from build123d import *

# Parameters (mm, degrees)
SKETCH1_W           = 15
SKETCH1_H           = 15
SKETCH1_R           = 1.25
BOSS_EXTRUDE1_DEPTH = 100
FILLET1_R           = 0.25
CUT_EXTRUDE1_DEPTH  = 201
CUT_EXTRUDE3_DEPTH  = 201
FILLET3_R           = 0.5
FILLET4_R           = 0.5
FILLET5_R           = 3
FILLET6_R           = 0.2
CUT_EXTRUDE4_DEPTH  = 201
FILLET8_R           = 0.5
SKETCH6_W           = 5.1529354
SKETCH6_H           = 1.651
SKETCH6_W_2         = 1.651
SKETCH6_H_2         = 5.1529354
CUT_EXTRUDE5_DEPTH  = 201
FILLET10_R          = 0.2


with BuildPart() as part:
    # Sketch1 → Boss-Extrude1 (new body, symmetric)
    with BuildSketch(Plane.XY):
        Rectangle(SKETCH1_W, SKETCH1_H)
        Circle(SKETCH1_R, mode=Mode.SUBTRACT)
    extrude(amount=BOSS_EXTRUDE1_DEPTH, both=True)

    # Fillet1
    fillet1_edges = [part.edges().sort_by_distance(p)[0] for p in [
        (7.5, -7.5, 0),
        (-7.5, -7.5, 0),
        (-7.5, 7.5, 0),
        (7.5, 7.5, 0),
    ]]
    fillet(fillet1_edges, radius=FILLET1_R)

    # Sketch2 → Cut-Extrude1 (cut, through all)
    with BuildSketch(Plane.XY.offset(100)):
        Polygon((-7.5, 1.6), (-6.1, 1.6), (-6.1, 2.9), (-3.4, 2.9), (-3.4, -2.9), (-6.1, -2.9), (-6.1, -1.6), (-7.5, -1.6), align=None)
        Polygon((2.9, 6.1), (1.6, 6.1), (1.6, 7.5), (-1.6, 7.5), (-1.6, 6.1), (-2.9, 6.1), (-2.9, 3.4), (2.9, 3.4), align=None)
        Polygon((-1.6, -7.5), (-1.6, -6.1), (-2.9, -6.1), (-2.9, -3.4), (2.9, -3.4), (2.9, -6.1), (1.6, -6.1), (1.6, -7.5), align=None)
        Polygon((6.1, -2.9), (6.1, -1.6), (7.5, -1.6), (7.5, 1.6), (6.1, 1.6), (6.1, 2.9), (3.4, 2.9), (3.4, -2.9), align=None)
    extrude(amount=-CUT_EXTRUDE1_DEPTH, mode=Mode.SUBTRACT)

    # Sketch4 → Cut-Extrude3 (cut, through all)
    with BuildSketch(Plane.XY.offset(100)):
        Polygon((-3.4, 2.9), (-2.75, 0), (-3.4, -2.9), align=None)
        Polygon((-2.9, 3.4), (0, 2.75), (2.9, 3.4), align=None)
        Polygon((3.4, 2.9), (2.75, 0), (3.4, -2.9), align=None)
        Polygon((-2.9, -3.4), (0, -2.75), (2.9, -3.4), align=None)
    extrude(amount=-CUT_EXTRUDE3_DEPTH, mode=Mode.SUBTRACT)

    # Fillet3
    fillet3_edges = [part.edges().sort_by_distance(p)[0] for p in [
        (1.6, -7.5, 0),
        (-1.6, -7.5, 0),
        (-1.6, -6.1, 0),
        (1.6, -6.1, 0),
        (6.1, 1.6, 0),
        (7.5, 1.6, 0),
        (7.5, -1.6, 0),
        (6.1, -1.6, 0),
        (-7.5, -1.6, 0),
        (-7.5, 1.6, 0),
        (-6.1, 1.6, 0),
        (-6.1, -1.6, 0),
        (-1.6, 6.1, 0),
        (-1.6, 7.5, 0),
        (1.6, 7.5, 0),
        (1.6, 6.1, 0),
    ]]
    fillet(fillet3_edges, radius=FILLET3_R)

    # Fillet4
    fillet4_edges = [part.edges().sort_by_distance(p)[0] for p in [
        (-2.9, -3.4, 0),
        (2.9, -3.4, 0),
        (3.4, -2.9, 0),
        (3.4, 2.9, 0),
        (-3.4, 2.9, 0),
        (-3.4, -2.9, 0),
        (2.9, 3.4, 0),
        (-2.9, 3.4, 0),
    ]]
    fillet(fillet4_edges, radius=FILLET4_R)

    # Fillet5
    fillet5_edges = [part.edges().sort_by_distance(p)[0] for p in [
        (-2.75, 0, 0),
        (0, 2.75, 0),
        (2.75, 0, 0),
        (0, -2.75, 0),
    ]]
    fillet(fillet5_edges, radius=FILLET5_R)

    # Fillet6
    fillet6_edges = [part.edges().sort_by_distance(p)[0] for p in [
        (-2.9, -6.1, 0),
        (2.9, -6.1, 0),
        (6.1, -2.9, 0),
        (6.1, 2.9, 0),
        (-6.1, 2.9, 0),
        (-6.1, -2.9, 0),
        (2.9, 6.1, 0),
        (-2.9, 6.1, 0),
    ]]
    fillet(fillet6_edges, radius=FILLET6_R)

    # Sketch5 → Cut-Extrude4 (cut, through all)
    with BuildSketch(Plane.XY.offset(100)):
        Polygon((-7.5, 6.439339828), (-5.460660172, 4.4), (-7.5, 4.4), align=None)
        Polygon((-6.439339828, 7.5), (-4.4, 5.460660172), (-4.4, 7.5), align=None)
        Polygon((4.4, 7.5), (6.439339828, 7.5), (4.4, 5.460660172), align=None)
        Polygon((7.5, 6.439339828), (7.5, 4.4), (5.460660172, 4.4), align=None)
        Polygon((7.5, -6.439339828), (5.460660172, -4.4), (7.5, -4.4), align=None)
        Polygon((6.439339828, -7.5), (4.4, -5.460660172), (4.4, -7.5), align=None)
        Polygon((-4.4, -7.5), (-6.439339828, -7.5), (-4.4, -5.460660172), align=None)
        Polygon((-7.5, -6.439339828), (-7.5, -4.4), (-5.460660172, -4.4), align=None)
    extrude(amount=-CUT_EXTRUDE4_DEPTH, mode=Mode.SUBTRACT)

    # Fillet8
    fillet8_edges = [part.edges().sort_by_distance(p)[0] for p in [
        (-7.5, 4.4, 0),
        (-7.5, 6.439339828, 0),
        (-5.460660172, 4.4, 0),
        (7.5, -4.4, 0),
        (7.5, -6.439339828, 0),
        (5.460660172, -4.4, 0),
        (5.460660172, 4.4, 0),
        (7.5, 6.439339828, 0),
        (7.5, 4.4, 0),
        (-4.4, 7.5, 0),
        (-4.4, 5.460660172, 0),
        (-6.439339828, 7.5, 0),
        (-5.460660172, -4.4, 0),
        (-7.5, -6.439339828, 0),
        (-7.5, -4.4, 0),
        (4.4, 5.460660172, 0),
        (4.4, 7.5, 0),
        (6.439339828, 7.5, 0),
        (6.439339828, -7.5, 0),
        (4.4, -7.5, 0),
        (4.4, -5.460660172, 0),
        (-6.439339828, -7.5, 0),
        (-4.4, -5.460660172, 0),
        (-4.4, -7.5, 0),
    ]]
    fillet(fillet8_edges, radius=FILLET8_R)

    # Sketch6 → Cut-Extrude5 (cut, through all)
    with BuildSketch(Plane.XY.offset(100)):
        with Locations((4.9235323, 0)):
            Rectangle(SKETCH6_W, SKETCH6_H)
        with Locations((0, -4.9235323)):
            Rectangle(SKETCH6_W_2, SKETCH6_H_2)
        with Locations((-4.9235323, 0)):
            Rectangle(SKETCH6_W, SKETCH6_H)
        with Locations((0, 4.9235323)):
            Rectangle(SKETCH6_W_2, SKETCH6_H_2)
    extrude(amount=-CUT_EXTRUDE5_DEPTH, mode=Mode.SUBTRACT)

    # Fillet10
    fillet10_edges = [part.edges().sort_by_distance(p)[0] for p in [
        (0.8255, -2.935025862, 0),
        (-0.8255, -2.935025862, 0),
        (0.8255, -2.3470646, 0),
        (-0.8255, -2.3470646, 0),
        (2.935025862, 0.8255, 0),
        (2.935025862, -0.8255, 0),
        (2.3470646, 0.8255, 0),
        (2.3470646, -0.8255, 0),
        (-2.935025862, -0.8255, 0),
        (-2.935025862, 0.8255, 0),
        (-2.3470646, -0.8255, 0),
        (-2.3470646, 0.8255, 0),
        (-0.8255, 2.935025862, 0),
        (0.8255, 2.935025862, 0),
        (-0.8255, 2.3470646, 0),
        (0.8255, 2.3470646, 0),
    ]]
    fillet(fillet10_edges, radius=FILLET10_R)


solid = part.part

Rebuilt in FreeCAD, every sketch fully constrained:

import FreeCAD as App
import Part
import Sketcher

V = App.Vector
Q = App.Units.Quantity


def edges_at(feature, points):
    """Names of the edges that pass closest to the given points."""
    edges = feature.Shape.Edges
    near = lambda p: min(range(len(edges)), key=lambda i: edges[i].distToShape(Part.Vertex(*p))[0])
    return sorted({f"Edge{near(p) + 1}" for p in points})


def add_polygon(sketch, points):
    """Adds a closed chain of lines whose ends are joined by coincident constraints."""
    first, n = sketch.GeometryCount, len(points)
    for a, b in zip(points, points[1:] + points[:1]):
        sketch.addGeometry(Part.LineSegment(App.Vector(*a, 0), App.Vector(*b, 0)), False)
    for i in range(n):
        sketch.addConstraint(Sketcher.Constraint("Coincident", first + i, 2, first + (i + 1) % n, 1))

doc = App.newDocument("Part")
body = doc.addObject("PartDesign::Body", "Body")

sketch1 = body.newObject("Sketcher::SketchObject", "Sketch")
sketch1.AttachmentSupport = (doc.getObject("XY_Plane"), [""])
sketch1.MapMode = "FlatFace"
add_polygon(sketch1, [(-7.5, 7.5), (-7.5, -7.5), (7.5, -7.5), (7.5, 7.5)])
sketch1.addGeometry(Part.Circle(V(0, 0, 0), V(0, 0, 1), 1.2), False)
sketch1.addConstraint([
    Sketcher.Constraint("Vertical", 0),
    Sketcher.Constraint("Horizontal", 1),
    Sketcher.Constraint("Vertical", 2),
    Sketcher.Constraint("Horizontal", 3),
    Sketcher.Constraint("Coincident", 4, 3, -1, 1),
    Sketcher.Constraint("Symmetric", 0, 2, 2, 2, -1, 1),
    Sketcher.Constraint("Equal", 3, 0),
    Sketcher.Constraint("Diameter", 4, Q("2.5 mm")),
    Sketcher.Constraint("DistanceX", 1, 1, 1, 2, Q("15 mm")),
])
pad1 = body.newObject("PartDesign::Pad", "Pad")
pad1.Profile = sketch1
pad1.Length = 200
pad1.Midplane = True
doc.recompute()

fillet = body.newObject("PartDesign::Fillet", "Fillet")
fillet.Base = (pad1, edges_at(pad1, [
    (7.5, -7.5, 0),
    (-7.5, -7.5, 0),
    (-7.5, 7.5, 0),
    (7.5, 7.5, 0),
]))
fillet.Radius = 0.25

sketch2 = body.newObject("Sketcher::SketchObject", "Sketch001")
sketch2.AttachmentSupport = (doc.getObject("XY_Plane"), [""])
sketch2.MapMode = "FlatFace"
sketch2.AttachmentOffset = App.Placement(V(0, 0, 100), App.Rotation())
add_polygon(sketch2, [(-6.1, 1.6), (-7.5, 1.6), (-7.5, -1.6), (-6.1, -1.6), (-6.1, -2.9), (-3.4, -2.9), (-3.4, 2.9), (-6.1, 2.9)])
add_polygon(sketch2, [(2.9, 6.1), (1.6, 6.1), (1.6, 7.5), (-1.6, 7.5), (-1.6, 6.1), (-2.9, 6.1), (-2.9, 3.4), (2.9, 3.4)])
add_polygon(sketch2, [(-1.6, -6.1), (-1.6, -7.5), (1.6, -7.5), (1.6, -6.1), (2.9, -6.1), (2.9, -3.4), (-2.9, -3.4), (-2.9, -6.1)])
add_polygon(sketch2, [(6.1, -2.9), (6.1, -1.6), (7.5, -1.6), (7.5, 1.6), (6.1, 1.6), (6.1, 2.9), (3.4, 2.9), (3.4, -2.9)])
sketch2.addConstraint([
    Sketcher.Constraint("Horizontal", 0),
    Sketcher.Constraint("Vertical", 1),
    Sketcher.Constraint("Horizontal", 2),
    Sketcher.Constraint("Vertical", 3),
    Sketcher.Constraint("Horizontal", 4),
    Sketcher.Constraint("Vertical", 5),
    Sketcher.Constraint("Horizontal", 6),
    Sketcher.Constraint("Vertical", 7),
    Sketcher.Constraint("Horizontal", 8),
    Sketcher.Constraint("Vertical", 9),
    Sketcher.Constraint("Horizontal", 10),
    Sketcher.Constraint("Vertical", 11),
    Sketcher.Constraint("Horizontal", 12),
    Sketcher.Constraint("Vertical", 13),
    Sketcher.Constraint("Horizontal", 14),
    Sketcher.Constraint("Vertical", 15),
    Sketcher.Constraint("Vertical", 16),
    Sketcher.Constraint("Horizontal", 17),
    Sketcher.Constraint("Vertical", 18),
    Sketcher.Constraint("Horizontal", 19),
    Sketcher.Constraint("Vertical", 20),
    Sketcher.Constraint("Horizontal", 21),
    Sketcher.Constraint("Vertical", 22),
    Sketcher.Constraint("Horizontal", 23),
    Sketcher.Constraint("Vertical", 24),
    Sketcher.Constraint("Horizontal", 25),
    Sketcher.Constraint("Vertical", 26),
    Sketcher.Constraint("Horizontal", 27),
    Sketcher.Constraint("Vertical", 28),
    Sketcher.Constraint("Horizontal", 29),
    Sketcher.Constraint("Vertical", 30),
    Sketcher.Constraint("Horizontal", 31),
    Sketcher.Constraint("Symmetric", 9, 2, 16, 2, -1, 1),
    Sketcher.Constraint("Symmetric", 11, 2, 18, 2, -1, 1),
    Sketcher.Constraint("Symmetric", 13, 2, 20, 2, -1, 1),
    Sketcher.Constraint("Symmetric", 15, 2, 22, 2, -1, 1),
    Sketcher.Constraint("Symmetric", 7, 2, 24, 2, -1, 1),
    Sketcher.Constraint("Symmetric", 1, 2, 26, 2, -1, 1),
    Sketcher.Constraint("Symmetric", 3, 2, 28, 2, -1, 1),
    Sketcher.Constraint("Symmetric", 5, 2, 30, 2, -1, 1),
    Sketcher.Constraint("Symmetric", 8, 2, 11, 2, -2),
    Sketcher.Constraint("Symmetric", 2, 2, 24, 2, -2),
    Sketcher.Constraint("Horizontal", 6, 2, 28, 2),
    Sketcher.Constraint("Vertical", 15, 2, 19, 2),
    Sketcher.Constraint("Equal", 17, 1),
    Sketcher.Constraint("Equal", 23, 3),
    Sketcher.Constraint("Equal", 27, 9),
    Sketcher.Constraint("Equal", 31, 13),
    Sketcher.Constraint("DistanceX", 0, 2, 0, 1, Q("1.4 mm")),
    Sketcher.Constraint("DistanceX", 4, 1, 4, 2, Q("2.7 mm")),
    Sketcher.Constraint("DistanceX", 8, 2, 8, 1, Q("1.3 mm")),
    Sketcher.Constraint("DistanceX", 10, 2, 10, 1, Q("3.2 mm")),
    Sketcher.Constraint("DistanceX", 5, 2, 8, 2, Q("5 mm")),
    Sketcher.Constraint("DistanceY", 4, 2, 8, 2, Q("9 mm")),
])
pocket1 = body.newObject("PartDesign::Pocket", "Pocket")
pocket1.Profile = sketch2
pocket1.Type = "ThroughAll"

sketch3 = body.newObject("Sketcher::SketchObject", "Sketch002")
sketch3.AttachmentSupport = (doc.getObject("XY_Plane"), [""])
sketch3.MapMode = "FlatFace"
sketch3.AttachmentOffset = App.Placement(V(0, 0, 100), App.Rotation())
add_polygon(sketch3, [(-2.8, 0), (-3.4, 2.9), (-3.4, -2.9)])
add_polygon(sketch3, [(-2.9, 3.4), (0, 2.8), (2.9, 3.4)])
add_polygon(sketch3, [(3.4, 2.9), (2.8, 0), (3.4, -2.9)])
add_polygon(sketch3, [(0, -2.8), (-2.9, -3.4), (2.9, -3.4)])
sketch3.addConstraint([
    Sketcher.Constraint("Vertical", 1),
    Sketcher.Constraint("Horizontal", 5),
    Sketcher.Constraint("Vertical", 8),
    Sketcher.Constraint("Horizontal", 10),
    Sketcher.Constraint("Symmetric", 2, 2, 6, 2, -1, 1),
    Sketcher.Constraint("Symmetric", 0, 2, 7, 2, -1, 1),
    Sketcher.Constraint("Symmetric", 4, 2, 9, 2, -1, 1),
    Sketcher.Constraint("Symmetric", 3, 2, 11, 2, -1, 1),
    Sketcher.Constraint("PointOnObject", 2, 2, -1),
    Sketcher.Constraint("PointOnObject", 3, 2, -2),
    Sketcher.Constraint("Perpendicular", 2, 3),
    Sketcher.Constraint("Perpendicular", 0, 4),
    Sketcher.Constraint("Perpendicular", 3, 6),
    Sketcher.Constraint("Perpendicular", 6, 11),
    Sketcher.Constraint("Horizontal", 1, 2, 7, 2),
    Sketcher.Constraint("Equal", 10, 1),
    Sketcher.Constraint("DistanceX", 5, 2, 5, 1, Q("5.8 mm")),
    Sketcher.Constraint("DistanceX", 0, 2, -1, 1, Q("3.4 mm")),
    Sketcher.Constraint("DistanceY", -1, 1, 4, 2, Q("3.4 mm")),
    Sketcher.Constraint("DistanceX", 2, 2, 6, 2, Q("5.5 mm")),
])
pocket2 = body.newObject("PartDesign::Pocket", "Pocket001")
pocket2.Profile = sketch3
pocket2.Type = "ThroughAll"
doc.recompute()

fillet2 = body.newObject("PartDesign::Fillet", "Fillet001")
fillet2.Base = (pocket2, edges_at(pocket2, [
    (1.6, -7.5, 0),
    (-1.6, -7.5, 0),
    (-1.6, -6.1, 0),
    (1.6, -6.1, 0),
    (6.1, 1.6, 0),
    (7.5, 1.6, 0),
    (7.5, -1.6, 0),
    (6.1, -1.6, 0),
    (-7.5, -1.6, 0),
    (-7.5, 1.6, 0),
    (-6.1, 1.6, 0),
    (-6.1, -1.6, 0),
    (-1.6, 6.1, 0),
    (-1.6, 7.5, 0),
    (1.6, 7.5, 0),
    (1.6, 6.1, 0),
]))
fillet2.Radius = 0.5
doc.recompute()

fillet3 = body.newObject("PartDesign::Fillet", "Fillet002")
fillet3.Base = (fillet2, edges_at(fillet2, [
    (-2.9, -3.4, 0),
    (2.9, -3.4, 0),
    (3.4, -2.9, 0),
    (3.4, 2.9, 0),
    (-3.4, 2.9, 0),
    (-3.4, -2.9, 0),
    (2.9, 3.4, 0),
    (-2.9, 3.4, 0),
]))
fillet3.Radius = 0.5
doc.recompute()

fillet4 = body.newObject("PartDesign::Fillet", "Fillet003")
fillet4.Base = (fillet3, edges_at(fillet3, [
    (-2.75, 0, 0),
    (0, 2.75, 0),
    (2.75, 0, 0),
    (0, -2.75, 0),
]))
fillet4.Radius = 3
doc.recompute()

fillet5 = body.newObject("PartDesign::Fillet", "Fillet004")
fillet5.Base = (fillet4, edges_at(fillet4, [
    (-2.9, -6.1, 0),
    (2.9, -6.1, 0),
    (6.1, -2.9, 0),
    (6.1, 2.9, 0),
    (-6.1, 2.9, 0),
    (-6.1, -2.9, 0),
    (2.9, 6.1, 0),
    (-2.9, 6.1, 0),
]))
fillet5.Radius = 0.2

sketch4 = body.newObject("Sketcher::SketchObject", "Sketch003")
sketch4.AttachmentSupport = (doc.getObject("XY_Plane"), [""])
sketch4.MapMode = "FlatFace"
sketch4.AttachmentOffset = App.Placement(V(0, 0, 100), App.Rotation())
add_polygon(sketch4, [(-5.5, 4.4), (-7.5, 6.4), (-7.5, 4.4)])
add_polygon(sketch4, [(-6.4, 7.5), (-4.4, 5.5), (-4.4, 7.5)])
add_polygon(sketch4, [(6.4, 7.5), (4.4, 7.5), (4.4, 5.5)])
add_polygon(sketch4, [(7.5, 4.4), (7.5, 6.4), (5.5, 4.4)])
add_polygon(sketch4, [(5.5, -4.4), (7.5, -6.4), (7.5, -4.4)])
add_polygon(sketch4, [(6.4, -7.5), (4.4, -5.5), (4.4, -7.5)])
add_polygon(sketch4, [(-6.4, -7.5), (-4.4, -7.5), (-4.4, -5.5)])
add_polygon(sketch4, [(-7.5, -4.4), (-7.5, -6.4), (-5.5, -4.4)])
sketch4.addConstraint([
    Sketcher.Constraint("Vertical", 1),
    Sketcher.Constraint("Horizontal", 2),
    Sketcher.Constraint("Vertical", 4),
    Sketcher.Constraint("Horizontal", 5),
    Sketcher.Constraint("Horizontal", 6),
    Sketcher.Constraint("Vertical", 7),
    Sketcher.Constraint("Vertical", 9),
    Sketcher.Constraint("Horizontal", 11),
    Sketcher.Constraint("Vertical", 13),
    Sketcher.Constraint("Horizontal", 14),
    Sketcher.Constraint("Vertical", 16),
    Sketcher.Constraint("Horizontal", 17),
    Sketcher.Constraint("Horizontal", 18),
    Sketcher.Constraint("Vertical", 19),
    Sketcher.Constraint("Vertical", 21),
    Sketcher.Constraint("Horizontal", 23),
    Sketcher.Constraint("Symmetric", 0, 2, 12, 2, -1, 1),
    Sketcher.Constraint("Symmetric", 2, 2, 14, 2, -1, 1),
    Sketcher.Constraint("Symmetric", 3, 2, 15, 2, -1, 1),
    Sketcher.Constraint("Symmetric", 5, 2, 17, 2, -1, 1),
    Sketcher.Constraint("Symmetric", 6, 2, 18, 2, -1, 1),
    Sketcher.Constraint("Symmetric", 9, 2, 21, 2, -1, 1),
    Sketcher.Constraint("Symmetric", 10, 2, 22, 2, -1, 1),
    Sketcher.Constraint("Symmetric", 4, 2, 6, 2, -2),
    Sketcher.Constraint("Symmetric", 0, 2, 9, 2, -2),
    Sketcher.Constraint("Symmetric", 2, 2, 10, 2, -2),
    Sketcher.Constraint("Parallel", 0, 3),
    Sketcher.Constraint("Perpendicular", 3, 8),
    Sketcher.Constraint("Parallel", 8, 10),
    Sketcher.Constraint("Perpendicular", 15, 20),
    Sketcher.Constraint("Horizontal", 3, 2, 7, 2),
    Sketcher.Constraint("Horizontal", 15, 2, 19, 2),
    Sketcher.Constraint("Equal", 2, 5),
    Sketcher.Constraint("DistanceX", 0, 2, -1, 1, Q("7.5 mm")),
    Sketcher.Constraint("DistanceY", -1, 1, 1, 2, Q("4.4 mm")),
    Sketcher.Constraint("DistanceX", 3, 2, -1, 1, Q("4.4 mm")),
    Sketcher.Constraint("DistanceY", -1, 1, 4, 2, Q("7.5 mm")),
    Sketcher.Constraint("DistanceX", 2, 1, 2, 2, Q("2.03934 mm")),
])
pocket3 = body.newObject("PartDesign::Pocket", "Pocket002")
pocket3.Profile = sketch4
pocket3.Type = "ThroughAll"
doc.recompute()

fillet6 = body.newObject("PartDesign::Fillet", "Fillet005")
fillet6.Base = (pocket3, edges_at(pocket3, [
    (-7.5, 4.4, 0),
    (-7.5, 6.439, 0),
    (-5.461, 4.4, 0),
    (7.5, -4.4, 0),
    (7.5, -6.439, 0),
    (5.461, -4.4, 0),
    (5.461, 4.4, 0),
    (7.5, 6.439, 0),
    (7.5, 4.4, 0),
    (-4.4, 7.5, 0),
    (-4.4, 5.461, 0),
    (-6.439, 7.5, 0),
    (-5.461, -4.4, 0),
    (-7.5, -6.439, 0),
    (-7.5, -4.4, 0),
    (4.4, 5.461, 0),
    (4.4, 7.5, 0),
    (6.439, 7.5, 0),
    (6.439, -7.5, 0),
    (4.4, -7.5, 0),
    (4.4, -5.461, 0),
    (-6.439, -7.5, 0),
    (-4.4, -5.461, 0),
    (-4.4, -7.5, 0),
]))
fillet6.Radius = 0.5

sketch5 = body.newObject("Sketcher::SketchObject", "Sketch004")
sketch5.AttachmentSupport = (doc.getObject("XY_Plane"), [""])
sketch5.MapMode = "FlatFace"
sketch5.AttachmentOffset = App.Placement(V(0, 0, 100), App.Rotation())
add_polygon(sketch5, [(2.3, 0.8), (2.3, -0.8), (7.5, -0.8), (7.5, 0.8)])
add_polygon(sketch5, [(-0.8, -2.3), (-0.8, -7.5), (0.8, -7.5), (0.8, -2.3)])
add_polygon(sketch5, [(-7.5, 0.8), (-7.5, -0.8), (-2.3, -0.8), (-2.3, 0.8)])
add_polygon(sketch5, [(-0.8, 7.5), (-0.8, 2.3), (0.8, 2.3), (0.8, 7.5)])
sketch5.addConstraint([
    Sketcher.Constraint("Vertical", 0),
    Sketcher.Constraint("Horizontal", 1),
    Sketcher.Constraint("Vertical", 2),
    Sketcher.Constraint("Horizontal", 3),
    Sketcher.Constraint("Vertical", 4),
    Sketcher.Constraint("Horizontal", 5),
    Sketcher.Constraint("Vertical", 6),
    Sketcher.Constraint("Horizontal", 7),
    Sketcher.Constraint("Vertical", 8),
    Sketcher.Constraint("Horizontal", 9),
    Sketcher.Constraint("Vertical", 10),
    Sketcher.Constraint("Horizontal", 11),
    Sketcher.Constraint("Vertical", 12),
    Sketcher.Constraint("Horizontal", 13),
    Sketcher.Constraint("Vertical", 14),
    Sketcher.Constraint("Horizontal", 15),
    Sketcher.Constraint("Symmetric", 2, 2, 8, 2, -1, 1),
    Sketcher.Constraint("Symmetric", 0, 2, 10, 2, -1, 1),
    Sketcher.Constraint("Symmetric", 6, 2, 12, 2, -1, 1),
    Sketcher.Constraint("Symmetric", 4, 2, 14, 2, -1, 1),
    Sketcher.Constraint("Horizontal", 1, 2, 8, 2),
    Sketcher.Constraint("Vertical", 7, 2, 12, 2),
    Sketcher.Constraint("Equal", 15, 0),
    Sketcher.Constraint("Equal", 11, 4),
    Sketcher.Constraint("DistanceX", -1, 1, 1, 2, Q("7.5 mm")),
    Sketcher.Constraint("DistanceY", 4, 2, -1, 1, Q("7.5 mm")),
    Sketcher.Constraint("DistanceX", 5, 1, 5, 2, Q("1.651 mm")),
    Sketcher.Constraint("DistanceX", 1, 1, 1, 2, Q("5.152935 mm")),
])
pocket4 = body.newObject("PartDesign::Pocket", "Pocket003")
pocket4.Profile = sketch5
pocket4.Type = "ThroughAll"
doc.recompute()

fillet7 = body.newObject("PartDesign::Fillet", "Fillet006")
fillet7.Base = (pocket4, edges_at(pocket4, [
    (0.826, -2.935, 0),
    (-0.826, -2.935, 0),
    (0.826, -2.347, 0),
    (-0.826, -2.347, 0),
    (2.935, 0.826, 0),
    (2.935, -0.826, 0),
    (2.347, 0.826, 0),
    (2.347, -0.826, 0),
    (-2.935, -0.826, 0),
    (-2.935, 0.826, 0),
    (-2.347, -0.826, 0),
    (-2.347, 0.826, 0),
    (-0.826, 2.935, 0),
    (0.826, 2.935, 0),
    (-0.826, 2.347, 0),
    (0.826, 2.347, 0),
]))
fillet7.Radius = 0.2

doc.recompute()
